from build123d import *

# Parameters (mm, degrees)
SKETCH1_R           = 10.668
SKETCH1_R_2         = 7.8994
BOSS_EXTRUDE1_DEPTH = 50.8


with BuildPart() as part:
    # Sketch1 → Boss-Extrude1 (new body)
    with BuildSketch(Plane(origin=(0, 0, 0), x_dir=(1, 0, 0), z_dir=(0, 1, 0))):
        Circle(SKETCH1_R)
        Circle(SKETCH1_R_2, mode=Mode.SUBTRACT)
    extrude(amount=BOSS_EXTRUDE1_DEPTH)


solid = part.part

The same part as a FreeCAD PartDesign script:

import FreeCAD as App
import Part
import Sketcher
Q = App.Units.Quantity

doc = App.newDocument("Part")
body = doc.addObject("PartDesign::Body", "Body")

sketch1 = body.newObject("Sketcher::SketchObject", "Sketch")
sketch1.AttachmentSupport = (doc.getObject("XZ_Plane"), [""])
sketch1.MapMode = "FlatFace"
sketch1.addGeometry(Part.Circle(App.Vector(0, 0, 0), App.Vector(0, 0, 1), 11), False)
sketch1.addGeometry(Part.Circle(App.Vector(0, 0, 0), App.Vector(0, 0, 1), 8), False)
sketch1.addConstraint(Sketcher.Constraint("Coincident", 0, 3, -1, 1))
sketch1.addConstraint(Sketcher.Constraint("Coincident", 1, 3, -1, 1))
sketch1.addConstraint(Sketcher.Constraint("Diameter", 0, Q("0.84 in")))
sketch1.addConstraint(Sketcher.Constraint("Diameter", 1, Q("0.622 in")))
pad1 = body.newObject("PartDesign::Pad", "Pad")
pad1.Profile = sketch1
pad1.Length = Q("2 in")
pad1.Reversed = True

doc.recompute()
